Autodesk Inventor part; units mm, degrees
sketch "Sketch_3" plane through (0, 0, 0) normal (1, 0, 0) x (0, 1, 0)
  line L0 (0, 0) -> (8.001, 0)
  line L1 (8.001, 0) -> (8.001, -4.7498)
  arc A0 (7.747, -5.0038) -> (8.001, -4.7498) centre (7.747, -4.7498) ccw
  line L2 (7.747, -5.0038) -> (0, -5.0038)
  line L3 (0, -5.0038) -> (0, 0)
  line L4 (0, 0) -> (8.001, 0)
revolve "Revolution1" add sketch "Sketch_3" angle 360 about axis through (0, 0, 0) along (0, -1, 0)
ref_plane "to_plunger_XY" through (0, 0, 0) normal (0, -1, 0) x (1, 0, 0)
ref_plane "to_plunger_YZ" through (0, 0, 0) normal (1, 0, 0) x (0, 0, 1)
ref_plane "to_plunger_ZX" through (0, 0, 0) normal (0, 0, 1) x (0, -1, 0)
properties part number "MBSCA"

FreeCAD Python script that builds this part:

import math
import FreeCAD as App
import Part
import Sketcher
Q = App.Units.Quantity

doc = App.newDocument("Part")
body = doc.addObject("PartDesign::Body", "Body")

# Sketch on YZ plane
sketch1 = body.newObject("Sketcher::SketchObject", "Sketch")
sketch1.AttachmentSupport = (doc.getObject("YZ_Plane"), [""])
sketch1.MapMode = "FlatFace"
sketch1.addGeometry(Part.LineSegment(App.Vector(8, 0, 0), App.Vector(0, 0, 0)), False)
sketch1.addGeometry(Part.LineSegment(App.Vector(0, 0, 0), App.Vector(0, -5, 0)), False)
sketch1.addGeometry(Part.LineSegment(App.Vector(0, -5, 0), App.Vector(7.75, -5, 0)), False)
sketch1.addGeometry(Part.ArcOfCircle(Part.Circle(App.Vector(7.75, -4.75, 0), App.Vector(0, 0, 1), 0.25), math.radians(-90), math.radians(0)), False)
sketch1.addGeometry(Part.LineSegment(App.Vector(8, -4.75, 0), App.Vector(8, 0, 0)), False)
sketch1.addConstraint(Sketcher.Constraint("Coincident", 0, 2, 1, 1))
sketch1.addConstraint(Sketcher.Constraint("Coincident", 1, 2, 2, 1))
sketch1.addConstraint(Sketcher.Constraint("Tangent", 2, 2, 3, 1))
sketch1.addConstraint(Sketcher.Constraint("Tangent", 3, 2, 4, 1))
sketch1.addConstraint(Sketcher.Constraint("Coincident", 4, 2, 0, 1))
sketch1.addConstraint(Sketcher.Constraint("Horizontal", 0))
sketch1.addConstraint(Sketcher.Constraint("Vertical", 1))
sketch1.addConstraint(Sketcher.Constraint("Horizontal", 2))
sketch1.addConstraint(Sketcher.Constraint("Vertical", 4))
sketch1.addConstraint(Sketcher.Constraint("Coincident", 0, 2, -1, 1))
sketch1.addConstraint(Sketcher.Constraint("Radius", 3, Q("0.01 in")))
sketch1.addConstraint(Sketcher.Constraint("DistanceX", 0, 2, 0, 1, Q("0.315 in")))
sketch1.addConstraint(Sketcher.Constraint("DistanceY", 1, 2, 1, 1, Q("0.197 in")))
revolution = body.newObject("PartDesign::Revolution", "Revolution")
revolution.Profile = sketch1
revolution.ReferenceAxis = (sketch1, ["H_Axis"])
revolution.Angle = 360

doc.recompute()
